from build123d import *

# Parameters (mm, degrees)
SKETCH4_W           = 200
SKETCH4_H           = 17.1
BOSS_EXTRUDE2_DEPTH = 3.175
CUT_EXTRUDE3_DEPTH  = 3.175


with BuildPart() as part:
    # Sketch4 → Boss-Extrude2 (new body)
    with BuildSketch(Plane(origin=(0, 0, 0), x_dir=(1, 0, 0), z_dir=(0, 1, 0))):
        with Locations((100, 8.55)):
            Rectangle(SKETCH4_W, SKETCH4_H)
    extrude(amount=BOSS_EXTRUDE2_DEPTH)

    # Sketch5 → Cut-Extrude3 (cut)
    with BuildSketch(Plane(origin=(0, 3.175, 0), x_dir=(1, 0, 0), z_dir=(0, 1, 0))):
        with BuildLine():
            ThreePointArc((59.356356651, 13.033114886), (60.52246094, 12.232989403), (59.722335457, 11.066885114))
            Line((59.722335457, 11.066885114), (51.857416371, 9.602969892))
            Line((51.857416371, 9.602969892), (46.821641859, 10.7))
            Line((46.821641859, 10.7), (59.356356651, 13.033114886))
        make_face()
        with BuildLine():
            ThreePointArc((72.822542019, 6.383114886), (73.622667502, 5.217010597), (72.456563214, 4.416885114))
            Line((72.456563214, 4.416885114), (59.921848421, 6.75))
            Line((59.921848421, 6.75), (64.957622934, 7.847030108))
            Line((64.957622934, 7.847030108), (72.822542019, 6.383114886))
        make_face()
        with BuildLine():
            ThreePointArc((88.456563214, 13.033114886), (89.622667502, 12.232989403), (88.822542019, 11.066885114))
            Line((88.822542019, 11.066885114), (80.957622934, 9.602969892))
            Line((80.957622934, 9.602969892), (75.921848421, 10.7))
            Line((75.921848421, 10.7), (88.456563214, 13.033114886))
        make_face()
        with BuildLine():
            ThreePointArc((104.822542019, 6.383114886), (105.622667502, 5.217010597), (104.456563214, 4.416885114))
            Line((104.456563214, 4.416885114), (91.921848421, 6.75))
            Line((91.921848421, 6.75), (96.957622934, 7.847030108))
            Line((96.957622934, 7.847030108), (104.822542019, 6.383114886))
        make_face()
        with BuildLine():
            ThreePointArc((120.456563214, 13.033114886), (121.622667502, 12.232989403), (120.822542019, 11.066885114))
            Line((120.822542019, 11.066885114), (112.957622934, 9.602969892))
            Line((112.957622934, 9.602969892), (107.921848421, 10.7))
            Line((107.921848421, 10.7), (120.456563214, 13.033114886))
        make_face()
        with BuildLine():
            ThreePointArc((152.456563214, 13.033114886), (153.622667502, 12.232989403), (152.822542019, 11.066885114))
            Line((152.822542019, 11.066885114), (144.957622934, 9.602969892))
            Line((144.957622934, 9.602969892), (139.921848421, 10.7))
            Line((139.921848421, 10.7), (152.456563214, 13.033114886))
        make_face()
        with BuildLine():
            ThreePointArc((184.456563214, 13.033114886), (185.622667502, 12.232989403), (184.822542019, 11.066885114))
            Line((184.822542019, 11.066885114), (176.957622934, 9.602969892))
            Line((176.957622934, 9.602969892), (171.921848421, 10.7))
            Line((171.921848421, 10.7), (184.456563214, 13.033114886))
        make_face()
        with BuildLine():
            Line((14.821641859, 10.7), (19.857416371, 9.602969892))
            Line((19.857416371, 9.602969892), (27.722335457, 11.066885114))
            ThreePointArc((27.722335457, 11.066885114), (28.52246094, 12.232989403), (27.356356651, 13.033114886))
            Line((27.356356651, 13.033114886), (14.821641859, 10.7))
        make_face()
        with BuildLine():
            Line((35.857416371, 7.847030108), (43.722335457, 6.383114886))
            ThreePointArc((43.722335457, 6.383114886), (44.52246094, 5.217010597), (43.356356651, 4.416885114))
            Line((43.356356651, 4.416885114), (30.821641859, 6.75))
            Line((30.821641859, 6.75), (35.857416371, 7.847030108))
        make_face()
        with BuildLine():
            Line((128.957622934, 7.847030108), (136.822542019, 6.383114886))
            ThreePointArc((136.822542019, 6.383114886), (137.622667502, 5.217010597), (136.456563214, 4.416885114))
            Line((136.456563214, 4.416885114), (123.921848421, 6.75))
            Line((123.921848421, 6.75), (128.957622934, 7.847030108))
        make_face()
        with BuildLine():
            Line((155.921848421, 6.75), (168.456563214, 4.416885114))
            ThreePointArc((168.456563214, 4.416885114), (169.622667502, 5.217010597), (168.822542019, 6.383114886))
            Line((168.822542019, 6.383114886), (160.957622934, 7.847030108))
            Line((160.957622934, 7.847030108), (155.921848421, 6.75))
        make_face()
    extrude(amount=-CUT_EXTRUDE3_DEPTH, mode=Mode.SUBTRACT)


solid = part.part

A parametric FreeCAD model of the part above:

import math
import FreeCAD as App
import Part
import Sketcher
from FreeCAD import Vector


def add_polygon(sketch, points):
    """Adds a closed chain of lines whose ends are joined by coincident constraints."""
    first, n = sketch.GeometryCount, len(points)
    for a, b in zip(points, points[1:] + points[:1]):
        sketch.addGeometry(Part.LineSegment(App.Vector(*a, 0), App.Vector(*b, 0)), False)
    for i in range(n):
        sketch.addConstraint(Sketcher.Constraint("Coincident", first + i, 2, first + (i + 1) % n, 1))

doc = App.newDocument("Part")
body = doc.addObject("PartDesign::Body", "Body")

sketch1 = body.newObject("Sketcher::SketchObject", "Sketch")
sketch1.AttachmentSupport = (doc.getObject("XZ_Plane"), [""])
sketch1.MapMode = "FlatFace"
add_polygon(sketch1, [(0, -17), (0, 0), (200, 0), (200, -17)])
sketch1.addConstraint(Sketcher.Constraint("Vertical", 0))
sketch1.addConstraint(Sketcher.Constraint("Horizontal", 1))
sketch1.addConstraint(Sketcher.Constraint("Vertical", 2))
sketch1.addConstraint(Sketcher.Constraint("Horizontal", 3))
sketch1.addConstraint(Sketcher.Constraint("Coincident", 0, 2, -1, 1))
sketch1.addConstraint(Sketcher.Constraint("DistanceX", 1, 1, 1, 2, 200.0))
sketch1.addConstraint(Sketcher.Constraint("DistanceY", 0, 1, 0, 2, 17.1))
pad1 = body.newObject("PartDesign::Pad", "Pad")
pad1.Profile = sketch1
pad1.Length = 3.175
pad1.Reversed = True

sketch2 = body.newObject("Sketcher::SketchObject", "Sketch001")
sketch2.AttachmentSupport = (doc.getObject("XZ_Plane"), [""])
sketch2.MapMode = "FlatFace"
sketch2.AttachmentOffset = App.Placement(Vector(0, 0, -3.175), App.Rotation())
sketch2.addGeometry(Part.ArcOfCircle(Part.Circle(Vector(59.5, -12.1, 0), Vector(0, 0, 1), 1), math.radians(-101), math.radians(79)), False)
sketch2.addGeometry(Part.LineSegment(Vector(59.4, -13, 0), Vector(46.8, -10.7, 0)), False)
sketch2.addGeometry(Part.LineSegment(Vector(46.8, -10.7, 0), Vector(51.9, -9.6, 0)), False)
sketch2.addGeometry(Part.LineSegment(Vector(51.9, -9.6, 0), Vector(59.7, -11.1, 0)), False)
sketch2.addGeometry(Part.ArcOfCircle(Part.Circle(Vector(72.6, -5.4, 0), Vector(0, 0, 1), 1), math.radians(-79), math.radians(101)), False)
sketch2.addGeometry(Part.LineSegment(Vector(72.8, -6.4, 0), Vector(65, -7.8, 0)), False)
sketch2.addGeometry(Part.LineSegment(Vector(65, -7.8, 0), Vector(59.9, -6.8, 0)), False)
sketch2.addGeometry(Part.LineSegment(Vector(59.9, -6.8, 0), Vector(72.5, -4.4, 0)), False)
sketch2.addGeometry(Part.ArcOfCircle(Part.Circle(Vector(88.6, -12.1, 0), Vector(0, 0, 1), 1), math.radians(-101), math.radians(79)), False)
sketch2.addGeometry(Part.LineSegment(Vector(88.5, -13, 0), Vector(75.9, -10.7, 0)), False)
sketch2.addGeometry(Part.LineSegment(Vector(75.9, -10.7, 0), Vector(81, -9.6, 0)), False)
sketch2.addGeometry(Part.LineSegment(Vector(81, -9.6, 0), Vector(88.8, -11.1, 0)), False)
sketch2.addGeometry(Part.ArcOfCircle(Part.Circle(Vector(104.6, -5.4, 0), Vector(0, 0, 1), 1), math.radians(-79), math.radians(101)), False)
sketch2.addGeometry(Part.LineSegment(Vector(104.8, -6.4, 0), Vector(97, -7.8, 0)), False)
sketch2.addGeometry(Part.LineSegment(Vector(97, -7.8, 0), Vector(91.9, -6.8, 0)), False)
sketch2.addGeometry(Part.LineSegment(Vector(91.9, -6.8, 0), Vector(104.5, -4.4, 0)), False)
sketch2.addGeometry(Part.ArcOfCircle(Part.Circle(Vector(120.6, -12.1, 0), Vector(0, 0, 1), 1), math.radians(-101), math.radians(79)), False)
sketch2.addGeometry(Part.LineSegment(Vector(120.5, -13, 0), Vector(107.9, -10.7, 0)), False)
sketch2.addGeometry(Part.LineSegment(Vector(107.9, -10.7, 0), Vector(113, -9.6, 0)), False)
sketch2.addGeometry(Part.LineSegment(Vector(113, -9.6, 0), Vector(120.8, -11.1, 0)), False)
sketch2.addGeometry(Part.ArcOfCircle(Part.Circle(Vector(152.6, -12.1, 0), Vector(0, 0, 1), 1), math.radians(-101), math.radians(79)), False)
sketch2.addGeometry(Part.LineSegment(Vector(152.5, -13, 0), Vector(139.9, -10.7, 0)), False)
sketch2.addGeometry(Part.LineSegment(Vector(139.9, -10.7, 0), Vector(145, -9.6, 0)), False)
sketch2.addGeometry(Part.LineSegment(Vector(145, -9.6, 0), Vector(152.8, -11.1, 0)), False)
sketch2.addGeometry(Part.ArcOfCircle(Part.Circle(Vector(184.6, -12.1, 0), Vector(0, 0, 1), 1), math.radians(-101), math.radians(79)), False)
sketch2.addGeometry(Part.LineSegment(Vector(184.5, -13, 0), Vector(171.9, -10.7, 0)), False)
sketch2.addGeometry(Part.LineSegment(Vector(171.9, -10.7, 0), Vector(177, -9.6, 0)), False)
sketch2.addGeometry(Part.LineSegment(Vector(177, -9.6, 0), Vector(184.8, -11.1, 0)), False)
sketch2.addGeometry(Part.LineSegment(Vector(14.8, -10.7, 0), Vector(19.9, -9.6, 0)), False)
sketch2.addGeometry(Part.LineSegment(Vector(19.9, -9.6, 0), Vector(27.7, -11.1, 0)), False)
sketch2.addGeometry(Part.ArcOfCircle(Part.Circle(Vector(27.5, -12.1, 0), Vector(0, 0, 1), 1), math.radians(-101), math.radians(79)), False)
sketch2.addGeometry(Part.LineSegment(Vector(27.4, -13, 0), Vector(14.8, -10.7, 0)), False)
sketch2.addGeometry(Part.LineSegment(Vector(43.7, -6.4, 0), Vector(35.9, -7.8, 0)), False)
sketch2.addGeometry(Part.LineSegment(Vector(35.9, -7.8, 0), Vector(30.8, -6.8, 0)), False)
sketch2.addGeometry(Part.LineSegment(Vector(30.8, -6.8, 0), Vector(43.4, -4.4, 0)), False)
sketch2.addGeometry(Part.ArcOfCircle(Part.Circle(Vector(43.5, -5.4, 0), Vector(0, 0, 1), 1), math.radians(-79), math.radians(101)), False)
sketch2.addGeometry(Part.LineSegment(Vector(136.8, -6.4, 0), Vector(129, -7.8, 0)), False)
sketch2.addGeometry(Part.LineSegment(Vector(129, -7.8, 0), Vector(123.9, -6.8, 0)), False)
sketch2.addGeometry(Part.LineSegment(Vector(123.9, -6.8, 0), Vector(136.5, -4.4, 0)), False)
sketch2.addGeometry(Part.ArcOfCircle(Part.Circle(Vector(136.6, -5.4, 0), Vector(0, 0, 1), 1), math.radians(-79), math.radians(101)), False)
sketch2.addGeometry(Part.LineSegment(Vector(155.9, -6.8, 0), Vector(168.5, -4.4, 0)), False)
sketch2.addGeometry(Part.ArcOfCircle(Part.Circle(Vector(168.6, -5.4, 0), Vector(0, 0, 1), 1), math.radians(-79), math.radians(101)), False)
sketch2.addGeometry(Part.LineSegment(Vector(168.8, -6.4, 0), Vector(161, -7.8, 0)), False)
sketch2.addGeometry(Part.LineSegment(Vector(161, -7.8, 0), Vector(155.9, -6.8, 0)), False)
sketch2.addConstraint(Sketcher.Constraint("Tangent", 0, 1, 1, 1))
sketch2.addConstraint(Sketcher.Constraint("Coincident", 1, 2, 2, 1))
sketch2.addConstraint(Sketcher.Constraint("Coincident", 2, 2, 3, 1))
sketch2.addConstraint(Sketcher.Constraint("Tangent", 3, 2, 0, 2))
sketch2.addConstraint(Sketcher.Constraint("Tangent", 4, 1, 5, 1))
sketch2.addConstraint(Sketcher.Constraint("Coincident", 5, 2, 6, 1))
sketch2.addConstraint(Sketcher.Constraint("Coincident", 6, 2, 7, 1))
sketch2.addConstraint(Sketcher.Constraint("Tangent", 7, 2, 4, 2))
sketch2.addConstraint(Sketcher.Constraint("Tangent", 8, 1, 9, 1))
sketch2.addConstraint(Sketcher.Constraint("Coincident", 9, 2, 10, 1))
sketch2.addConstraint(Sketcher.Constraint("Coincident", 10, 2, 11, 1))
sketch2.addConstraint(Sketcher.Constraint("Tangent", 11, 2, 8, 2))
sketch2.addConstraint(Sketcher.Constraint("Tangent", 12, 1, 13, 1))
sketch2.addConstraint(Sketcher.Constraint("Coincident", 13, 2, 14, 1))
sketch2.addConstraint(Sketcher.Constraint("Coincident", 14, 2, 15, 1))
sketch2.addConstraint(Sketcher.Constraint("Tangent", 15, 2, 12, 2))
sketch2.addConstraint(Sketcher.Constraint("Tangent", 16, 1, 17, 1))
sketch2.addConstraint(Sketcher.Constraint("Coincident", 17, 2, 18, 1))
sketch2.addConstraint(Sketcher.Constraint("Coincident", 18, 2, 19, 1))
sketch2.addConstraint(Sketcher.Constraint("Tangent", 19, 2, 16, 2))
sketch2.addConstraint(Sketcher.Constraint("Tangent", 20, 1, 21, 1))
sketch2.addConstraint(Sketcher.Constraint("Coincident", 21, 2, 22, 1))
sketch2.addConstraint(Sketcher.Constraint("Coincident", 22, 2, 23, 1))
sketch2.addConstraint(Sketcher.Constraint("Tangent", 23, 2, 20, 2))
sketch2.addConstraint(Sketcher.Constraint("Tangent", 24, 1, 25, 1))
sketch2.addConstraint(Sketcher.Constraint("Coincident", 25, 2, 26, 1))
sketch2.addConstraint(Sketcher.Constraint("Coincident", 26, 2, 27, 1))
sketch2.addConstraint(Sketcher.Constraint("Tangent", 27, 2, 24, 2))
sketch2.addConstraint(Sketcher.Constraint("Coincident", 28, 2, 29, 1))
sketch2.addConstraint(Sketcher.Constraint("Tangent", 29, 2, 30, 2))
sketch2.addConstraint(Sketcher.Constraint("Tangent", 30, 1, 31, 1))
sketch2.addConstraint(Sketcher.Constraint("Coincident", 31, 2, 28, 1))
sketch2.addConstraint(Sketcher.Constraint("Coincident", 32, 2, 33, 1))
sketch2.addConstraint(Sketcher.Constraint("Coincident", 33, 2, 34, 1))
sketch2.addConstraint(Sketcher.Constraint("Tangent", 34, 2, 35, 2))
sketch2.addConstraint(Sketcher.Constraint("Tangent", 35, 1, 32, 1))
sketch2.addConstraint(Sketcher.Constraint("Coincident", 36, 2, 37, 1))
sketch2.addConstraint(Sketcher.Constraint("Coincident", 37, 2, 38, 1))
sketch2.addConstraint(Sketcher.Constraint("Tangent", 38, 2, 39, 2))
sketch2.addConstraint(Sketcher.Constraint("Tangent", 39, 1, 36, 1))
sketch2.addConstraint(Sketcher.Constraint("Tangent", 40, 2, 41, 2))
sketch2.addConstraint(Sketcher.Constraint("Tangent", 41, 1, 42, 1))
sketch2.addConstraint(Sketcher.Constraint("Coincident", 42, 2, 43, 1))
sketch2.addConstraint(Sketcher.Constraint("Coincident", 43, 2, 40, 1))
sketch2.addConstraint(Sketcher.Constraint("Equal", 0, 4))
sketch2.addConstraint(Sketcher.Constraint("Equal", 4, 8))
sketch2.addConstraint(Sketcher.Constraint("Equal", 8, 12))
sketch2.addConstraint(Sketcher.Constraint("Equal", 12, 16))
sketch2.addConstraint(Sketcher.Constraint("Equal", 16, 20))
sketch2.addConstraint(Sketcher.Constraint("Equal", 20, 24))
sketch2.addConstraint(Sketcher.Constraint("Equal", 24, 30))
sketch2.addConstraint(Sketcher.Constraint("Equal", 30, 35))
sketch2.addConstraint(Sketcher.Constraint("Equal", 35, 39))
sketch2.addConstraint(Sketcher.Constraint("Equal", 39, 41))
sketch2.addConstraint(Sketcher.Constraint("Parallel", 1, 3))
sketch2.addConstraint(Sketcher.Constraint("Parallel", 5, 7))
sketch2.addConstraint(Sketcher.Constraint("Parallel", 3, 9))
sketch2.addConstraint(Sketcher.Constraint("Parallel", 2, 10))
sketch2.addConstraint(Sketcher.Constraint("Parallel", 9, 11))
sketch2.addConstraint(Sketcher.Constraint("Parallel", 7, 13))
sketch2.addConstraint(Sketcher.Constraint("Parallel", 6, 14))
sketch2.addConstraint(Sketcher.Constraint("Parallel", 13, 15))
sketch2.addConstraint(Sketcher.Constraint("Parallel", 11, 17))
sketch2.addConstraint(Sketcher.Constraint("Parallel", 10, 18))
sketch2.addConstraint(Sketcher.Constraint("Parallel", 17, 19))
sketch2.addConstraint(Sketcher.Constraint("Parallel", 19, 21))
sketch2.addConstraint(Sketcher.Constraint("Parallel", 18, 22))
sketch2.addConstraint(Sketcher.Constraint("Parallel", 21, 23))
sketch2.addConstraint(Sketcher.Constraint("Parallel", 23, 25))
sketch2.addConstraint(Sketcher.Constraint("Parallel", 22, 26))
sketch2.addConstraint(Sketcher.Constraint("Parallel", 25, 27))
sketch2.addConstraint(Sketcher.Constraint("Parallel", 26, 28))
sketch2.addConstraint(Sketcher.Constraint("Parallel", 27, 29))
sketch2.addConstraint(Sketcher.Constraint("Parallel", 29, 31))
sketch2.addConstraint(Sketcher.Constraint("Parallel", 15, 32))
sketch2.addConstraint(Sketcher.Constraint("Parallel", 14, 33))
sketch2.addConstraint(Sketcher.Constraint("Parallel", 32, 34))
sketch2.addConstraint(Sketcher.Constraint("Parallel", 34, 36))
sketch2.addConstraint(Sketcher.Constraint("Parallel", 33, 37))
sketch2.addConstraint(Sketcher.Constraint("Parallel", 36, 38))
sketch2.addConstraint(Sketcher.Constraint("Parallel", 38, 40))
sketch2.addConstraint(Sketcher.Constraint("Parallel", 40, 42))
sketch2.addConstraint(Sketcher.Constraint("Parallel", 37, 43))
sketch2.addConstraint(Sketcher.Constraint("Horizontal", 0, 3, 8, 3))
sketch2.addConstraint(Sketcher.Constraint("Horizontal", 4, 3, 12, 3))
sketch2.addConstraint(Sketcher.Constraint("Horizontal", 8, 3, 16, 3))
sketch2.addConstraint(Sketcher.Constraint("Horizontal", 16, 3, 20, 3))
sketch2.addConstraint(Sketcher.Constraint("Horizontal", 20, 3, 24, 3))
sketch2.addConstraint(Sketcher.Constraint("Horizontal", 24, 3, 30, 3))
sketch2.addConstraint(Sketcher.Constraint("Horizontal", 12, 3, 35, 3))
sketch2.addConstraint(Sketcher.Constraint("Horizontal", 35, 3, 39, 3))
sketch2.addConstraint(Sketcher.Constraint("Horizontal", 39, 3, 41, 3))
sketch2.addConstraint(Sketcher.Constraint("Horizontal", 1, 2, 9, 2))
sketch2.addConstraint(Sketcher.Constraint("Horizontal", 5, 2, 13, 2))
sketch2.addConstraint(Sketcher.Constraint("Horizontal", 9, 2, 17, 2))
sketch2.addConstraint(Sketcher.Constraint("Horizontal", 17, 2, 21, 2))
sketch2.addConstraint(Sketcher.Constraint("Horizontal", 21, 2, 25, 2))
sketch2.addConstraint(Sketcher.Constraint("Horizontal", 26, 2, 28, 2))
sketch2.addConstraint(Sketcher.Constraint("Horizontal", 13, 2, 32, 2))
sketch2.addConstraint(Sketcher.Constraint("Horizontal", 32, 2, 36, 2))
sketch2.addConstraint(Sketcher.Constraint("Horizontal", 36, 2, 42, 2))
sketch2.addConstraint(Sketcher.Constraint("Equal", 3, 5))
sketch2.addConstraint(Sketcher.Constraint("Equal", 2, 6))
sketch2.addConstraint(Sketcher.Constraint("Radius", 0, 1.0))
sketch2.addConstraint(Sketcher.Constraint("Distance", 3, 8.0))
sketch2.addConstraint(Sketcher.Constraint("DistanceX", 4, 3, 8, 3, 16.0))
sketch2.addConstraint(Sketcher.Constraint("DistanceX", 8, 3, 12, 3, 16.0))
sketch2.addConstraint(Sketcher.Constraint("DistanceX", 12, 3, 16, 3, 16.0))
sketch2.addConstraint(Sketcher.Constraint("DistanceX", 16, 3, 20, 3, 32.0))
sketch2.addConstraint(Sketcher.Constraint("DistanceX", 20, 3, 24, 3, 32.0))
sketch2.addConstraint(Sketcher.Constraint("DistanceX", 30, 3, 0, 3, 32.0))
sketch2.addConstraint(Sketcher.Constraint("DistanceX", 35, 3, 0, 3, 16.0))
sketch2.addConstraint(Sketcher.Constraint("DistanceX", 16, 3, 39, 3, 16.0))
sketch2.addConstraint(Sketcher.Constraint("DistanceX", 20, 3, 41, 3, 16.0))
sketch2.addConstraint(Sketcher.Constraint("DistanceX", 7, 2, 8, 1, 16.0))
sketch2.addConstraint(Sketcher.Constraint("DistanceY", 4, 3, -1, 1, 5.4))
sketch2.addConstraint(Sketcher.Constraint("DistanceY", 1, 2, -1, 1, 10.7))
sketch2.addConstraint(Sketcher.Constraint("Distance", 1, 12.75))
sketch2.addConstraint(Sketcher.Constraint("DistanceY", 0, 3, -1, 1, 12.05))
sketch2.addConstraint(Sketcher.Constraint("DistanceX", -1, 1, 1, 2, 46.821642))
sketch2.addConstraint(Sketcher.Constraint("DistanceX", -1, 1, 6, 2, 59.921848))
pocket1 = body.newObject("PartDesign::Pocket", "Pocket")
pocket1.Profile = sketch2
pocket1.Length = 3.175
pocket1.Reversed = True

doc.recompute()
